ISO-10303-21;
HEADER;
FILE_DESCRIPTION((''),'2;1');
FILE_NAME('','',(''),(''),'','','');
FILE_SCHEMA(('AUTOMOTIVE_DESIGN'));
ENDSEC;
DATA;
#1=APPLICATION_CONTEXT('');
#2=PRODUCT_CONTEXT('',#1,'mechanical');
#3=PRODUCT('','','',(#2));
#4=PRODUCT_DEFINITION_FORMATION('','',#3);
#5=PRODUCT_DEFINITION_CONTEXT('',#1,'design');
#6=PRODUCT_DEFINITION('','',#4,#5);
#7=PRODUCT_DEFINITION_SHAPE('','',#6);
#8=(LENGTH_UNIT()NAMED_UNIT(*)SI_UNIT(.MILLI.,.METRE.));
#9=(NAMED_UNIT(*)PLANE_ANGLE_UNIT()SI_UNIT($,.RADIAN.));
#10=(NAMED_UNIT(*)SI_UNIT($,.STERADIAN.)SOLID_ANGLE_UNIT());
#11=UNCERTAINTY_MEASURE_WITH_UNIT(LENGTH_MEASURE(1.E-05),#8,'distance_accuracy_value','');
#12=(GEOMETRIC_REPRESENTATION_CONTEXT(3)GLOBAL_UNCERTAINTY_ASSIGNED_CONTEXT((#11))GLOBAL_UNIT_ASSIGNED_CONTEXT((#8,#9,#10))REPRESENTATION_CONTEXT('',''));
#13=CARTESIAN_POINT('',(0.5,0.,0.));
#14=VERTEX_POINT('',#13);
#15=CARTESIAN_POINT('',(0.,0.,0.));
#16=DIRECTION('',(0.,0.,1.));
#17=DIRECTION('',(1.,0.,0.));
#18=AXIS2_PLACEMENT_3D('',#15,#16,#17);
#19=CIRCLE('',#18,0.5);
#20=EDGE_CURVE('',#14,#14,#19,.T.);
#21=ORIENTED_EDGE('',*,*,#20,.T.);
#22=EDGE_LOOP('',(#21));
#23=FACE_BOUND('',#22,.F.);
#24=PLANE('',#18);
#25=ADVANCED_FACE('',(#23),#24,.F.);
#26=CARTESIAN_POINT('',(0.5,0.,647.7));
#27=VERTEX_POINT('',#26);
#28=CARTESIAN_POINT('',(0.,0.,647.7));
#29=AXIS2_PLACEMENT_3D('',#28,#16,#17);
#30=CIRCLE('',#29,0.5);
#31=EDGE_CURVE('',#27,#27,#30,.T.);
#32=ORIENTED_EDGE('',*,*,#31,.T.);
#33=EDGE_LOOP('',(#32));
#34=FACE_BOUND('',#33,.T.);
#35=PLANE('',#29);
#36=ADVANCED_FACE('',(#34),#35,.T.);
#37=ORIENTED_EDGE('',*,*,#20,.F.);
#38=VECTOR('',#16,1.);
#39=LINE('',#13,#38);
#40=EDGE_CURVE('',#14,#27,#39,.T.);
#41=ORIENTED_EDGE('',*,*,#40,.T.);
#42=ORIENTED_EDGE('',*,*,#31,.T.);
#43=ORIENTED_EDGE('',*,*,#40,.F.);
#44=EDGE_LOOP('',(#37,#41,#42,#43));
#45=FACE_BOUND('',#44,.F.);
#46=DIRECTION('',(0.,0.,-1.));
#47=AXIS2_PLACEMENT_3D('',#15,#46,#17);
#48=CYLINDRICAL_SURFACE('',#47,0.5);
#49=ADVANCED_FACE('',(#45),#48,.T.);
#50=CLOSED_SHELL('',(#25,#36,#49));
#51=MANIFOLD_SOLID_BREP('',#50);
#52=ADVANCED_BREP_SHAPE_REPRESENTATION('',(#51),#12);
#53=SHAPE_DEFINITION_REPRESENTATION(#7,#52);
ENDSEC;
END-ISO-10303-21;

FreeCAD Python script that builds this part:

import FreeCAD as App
import Part
import Sketcher
from FreeCAD import Vector

doc = App.newDocument("Part")
params = doc.addObject("Spreadsheet::Sheet", "Params")
for row, (alias, value) in enumerate([
    ("sketch1_diameter", "1 mm"),
    ("pad1_length", "647.7 mm"),
], start=1):
    params.set(f"A{row}", alias)
    params.set(f"B{row}", "=" + value)
    params.setAlias(f"B{row}", alias)

body = doc.addObject("PartDesign::Body", "Body")

# Sketch on XY plane
sketch1 = doc.addObject("Sketcher::SketchObject", "Sketch")
body.addObject(sketch1)
sketch1.AttachmentSupport = (doc.XY_Plane, [""])
sketch1.MapMode = "FlatFace"
sketch1.addGeometry(Part.Circle(Vector(0, 0, 0), Vector(0, 0, 1), 0.5), False)
sketch1.addConstraint([
    Sketcher.Constraint("Coincident", 0, 3, -1, 1),
    Sketcher.Constraint("Diameter", 0, 1.0),
])
sketch1.setExpression("Constraints[1]", "Params.sketch1_diameter")
pad1 = doc.addObject("PartDesign::Pad", "Pad")
body.addObject(pad1)
pad1.Profile = sketch1
pad1.setExpression("Length", "Params.pad1_length")

doc.recompute()
